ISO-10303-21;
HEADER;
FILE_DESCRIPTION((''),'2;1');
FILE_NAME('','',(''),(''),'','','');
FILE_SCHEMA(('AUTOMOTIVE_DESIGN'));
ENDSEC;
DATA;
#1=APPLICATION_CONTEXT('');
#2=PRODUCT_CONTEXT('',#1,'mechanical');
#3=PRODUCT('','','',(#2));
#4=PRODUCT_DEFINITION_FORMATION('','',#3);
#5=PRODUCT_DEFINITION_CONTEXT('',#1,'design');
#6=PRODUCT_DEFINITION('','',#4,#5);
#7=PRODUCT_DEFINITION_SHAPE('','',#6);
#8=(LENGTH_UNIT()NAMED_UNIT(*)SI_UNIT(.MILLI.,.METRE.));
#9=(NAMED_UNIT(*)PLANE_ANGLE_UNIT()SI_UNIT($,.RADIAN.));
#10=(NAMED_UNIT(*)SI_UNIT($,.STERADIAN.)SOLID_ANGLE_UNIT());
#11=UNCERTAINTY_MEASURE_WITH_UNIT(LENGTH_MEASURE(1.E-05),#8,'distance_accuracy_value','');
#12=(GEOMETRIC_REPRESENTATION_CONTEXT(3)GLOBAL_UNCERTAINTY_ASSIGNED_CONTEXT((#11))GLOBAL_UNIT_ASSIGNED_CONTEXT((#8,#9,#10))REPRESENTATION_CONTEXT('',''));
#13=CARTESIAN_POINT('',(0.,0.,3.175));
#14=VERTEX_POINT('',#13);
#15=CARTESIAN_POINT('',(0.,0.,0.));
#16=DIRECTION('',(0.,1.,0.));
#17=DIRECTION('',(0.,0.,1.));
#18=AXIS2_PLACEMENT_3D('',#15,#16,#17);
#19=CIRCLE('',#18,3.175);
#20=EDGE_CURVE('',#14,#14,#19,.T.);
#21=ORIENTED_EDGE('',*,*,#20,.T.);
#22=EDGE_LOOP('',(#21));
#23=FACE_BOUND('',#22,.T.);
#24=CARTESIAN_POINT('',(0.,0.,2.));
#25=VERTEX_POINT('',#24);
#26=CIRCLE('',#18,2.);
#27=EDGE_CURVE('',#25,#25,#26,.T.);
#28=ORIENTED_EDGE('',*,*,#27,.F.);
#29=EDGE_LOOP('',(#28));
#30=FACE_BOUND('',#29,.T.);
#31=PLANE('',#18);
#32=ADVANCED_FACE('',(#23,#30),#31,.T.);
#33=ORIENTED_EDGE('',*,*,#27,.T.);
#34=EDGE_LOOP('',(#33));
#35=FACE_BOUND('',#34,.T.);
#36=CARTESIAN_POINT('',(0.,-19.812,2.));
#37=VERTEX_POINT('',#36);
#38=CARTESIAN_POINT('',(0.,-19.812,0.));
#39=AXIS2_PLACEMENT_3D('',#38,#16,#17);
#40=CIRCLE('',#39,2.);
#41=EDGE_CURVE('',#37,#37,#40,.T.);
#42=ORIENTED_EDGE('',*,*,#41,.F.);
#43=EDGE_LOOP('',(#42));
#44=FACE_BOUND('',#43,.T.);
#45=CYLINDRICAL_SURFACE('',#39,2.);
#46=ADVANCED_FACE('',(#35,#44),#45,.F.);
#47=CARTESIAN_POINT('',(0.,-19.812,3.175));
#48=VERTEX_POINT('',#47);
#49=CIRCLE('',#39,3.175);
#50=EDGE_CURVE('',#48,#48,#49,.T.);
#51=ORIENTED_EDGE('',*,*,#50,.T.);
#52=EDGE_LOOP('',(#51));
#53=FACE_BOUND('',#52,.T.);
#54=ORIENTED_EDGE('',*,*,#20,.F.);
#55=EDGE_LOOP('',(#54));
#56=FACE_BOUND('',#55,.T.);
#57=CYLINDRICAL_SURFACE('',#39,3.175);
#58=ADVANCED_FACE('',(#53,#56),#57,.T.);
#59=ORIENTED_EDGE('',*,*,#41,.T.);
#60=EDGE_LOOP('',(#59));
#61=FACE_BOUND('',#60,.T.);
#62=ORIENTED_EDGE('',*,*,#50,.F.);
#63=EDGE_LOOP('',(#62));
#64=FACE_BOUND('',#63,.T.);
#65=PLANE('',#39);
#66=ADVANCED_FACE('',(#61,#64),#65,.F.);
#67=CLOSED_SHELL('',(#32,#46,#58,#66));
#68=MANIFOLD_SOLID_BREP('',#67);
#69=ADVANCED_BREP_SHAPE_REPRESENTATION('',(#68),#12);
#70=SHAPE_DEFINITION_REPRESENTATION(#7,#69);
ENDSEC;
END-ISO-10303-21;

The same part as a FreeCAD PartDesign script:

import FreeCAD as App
import Part
import Sketcher
from FreeCAD import Vector
Q = App.Units.Quantity

doc = App.newDocument("Part")
body = doc.addObject("PartDesign::Body", "Body")

# Sketch on XZ plane
sketch1 = body.newObject("Sketcher::SketchObject", "Sketch")
sketch1.AttachmentSupport = (doc.getObject("XZ_Plane"), [""])
sketch1.MapMode = "FlatFace"
sketch1.addGeometry(Part.Circle(Vector(0, 0, 0), Vector(0, 0, 1), 3.2), False)
sketch1.addGeometry(Part.Circle(Vector(0, 0, 0), Vector(0, 0, 1), 2), False)
sketch1.addConstraint(Sketcher.Constraint("Coincident", 0, 3, -1, 1))
sketch1.addConstraint(Sketcher.Constraint("Coincident", 1, 3, -1, 1))
sketch1.addConstraint(Sketcher.Constraint("Diameter", 0, Q("0.25 in")))
sketch1.addConstraint(Sketcher.Constraint("Diameter", 1, Q("4 mm")))
pad1 = body.newObject("PartDesign::Pad", "Pad")
pad1.Profile = sketch1
pad1.Length = Q("0.78 in")

doc.recompute()
